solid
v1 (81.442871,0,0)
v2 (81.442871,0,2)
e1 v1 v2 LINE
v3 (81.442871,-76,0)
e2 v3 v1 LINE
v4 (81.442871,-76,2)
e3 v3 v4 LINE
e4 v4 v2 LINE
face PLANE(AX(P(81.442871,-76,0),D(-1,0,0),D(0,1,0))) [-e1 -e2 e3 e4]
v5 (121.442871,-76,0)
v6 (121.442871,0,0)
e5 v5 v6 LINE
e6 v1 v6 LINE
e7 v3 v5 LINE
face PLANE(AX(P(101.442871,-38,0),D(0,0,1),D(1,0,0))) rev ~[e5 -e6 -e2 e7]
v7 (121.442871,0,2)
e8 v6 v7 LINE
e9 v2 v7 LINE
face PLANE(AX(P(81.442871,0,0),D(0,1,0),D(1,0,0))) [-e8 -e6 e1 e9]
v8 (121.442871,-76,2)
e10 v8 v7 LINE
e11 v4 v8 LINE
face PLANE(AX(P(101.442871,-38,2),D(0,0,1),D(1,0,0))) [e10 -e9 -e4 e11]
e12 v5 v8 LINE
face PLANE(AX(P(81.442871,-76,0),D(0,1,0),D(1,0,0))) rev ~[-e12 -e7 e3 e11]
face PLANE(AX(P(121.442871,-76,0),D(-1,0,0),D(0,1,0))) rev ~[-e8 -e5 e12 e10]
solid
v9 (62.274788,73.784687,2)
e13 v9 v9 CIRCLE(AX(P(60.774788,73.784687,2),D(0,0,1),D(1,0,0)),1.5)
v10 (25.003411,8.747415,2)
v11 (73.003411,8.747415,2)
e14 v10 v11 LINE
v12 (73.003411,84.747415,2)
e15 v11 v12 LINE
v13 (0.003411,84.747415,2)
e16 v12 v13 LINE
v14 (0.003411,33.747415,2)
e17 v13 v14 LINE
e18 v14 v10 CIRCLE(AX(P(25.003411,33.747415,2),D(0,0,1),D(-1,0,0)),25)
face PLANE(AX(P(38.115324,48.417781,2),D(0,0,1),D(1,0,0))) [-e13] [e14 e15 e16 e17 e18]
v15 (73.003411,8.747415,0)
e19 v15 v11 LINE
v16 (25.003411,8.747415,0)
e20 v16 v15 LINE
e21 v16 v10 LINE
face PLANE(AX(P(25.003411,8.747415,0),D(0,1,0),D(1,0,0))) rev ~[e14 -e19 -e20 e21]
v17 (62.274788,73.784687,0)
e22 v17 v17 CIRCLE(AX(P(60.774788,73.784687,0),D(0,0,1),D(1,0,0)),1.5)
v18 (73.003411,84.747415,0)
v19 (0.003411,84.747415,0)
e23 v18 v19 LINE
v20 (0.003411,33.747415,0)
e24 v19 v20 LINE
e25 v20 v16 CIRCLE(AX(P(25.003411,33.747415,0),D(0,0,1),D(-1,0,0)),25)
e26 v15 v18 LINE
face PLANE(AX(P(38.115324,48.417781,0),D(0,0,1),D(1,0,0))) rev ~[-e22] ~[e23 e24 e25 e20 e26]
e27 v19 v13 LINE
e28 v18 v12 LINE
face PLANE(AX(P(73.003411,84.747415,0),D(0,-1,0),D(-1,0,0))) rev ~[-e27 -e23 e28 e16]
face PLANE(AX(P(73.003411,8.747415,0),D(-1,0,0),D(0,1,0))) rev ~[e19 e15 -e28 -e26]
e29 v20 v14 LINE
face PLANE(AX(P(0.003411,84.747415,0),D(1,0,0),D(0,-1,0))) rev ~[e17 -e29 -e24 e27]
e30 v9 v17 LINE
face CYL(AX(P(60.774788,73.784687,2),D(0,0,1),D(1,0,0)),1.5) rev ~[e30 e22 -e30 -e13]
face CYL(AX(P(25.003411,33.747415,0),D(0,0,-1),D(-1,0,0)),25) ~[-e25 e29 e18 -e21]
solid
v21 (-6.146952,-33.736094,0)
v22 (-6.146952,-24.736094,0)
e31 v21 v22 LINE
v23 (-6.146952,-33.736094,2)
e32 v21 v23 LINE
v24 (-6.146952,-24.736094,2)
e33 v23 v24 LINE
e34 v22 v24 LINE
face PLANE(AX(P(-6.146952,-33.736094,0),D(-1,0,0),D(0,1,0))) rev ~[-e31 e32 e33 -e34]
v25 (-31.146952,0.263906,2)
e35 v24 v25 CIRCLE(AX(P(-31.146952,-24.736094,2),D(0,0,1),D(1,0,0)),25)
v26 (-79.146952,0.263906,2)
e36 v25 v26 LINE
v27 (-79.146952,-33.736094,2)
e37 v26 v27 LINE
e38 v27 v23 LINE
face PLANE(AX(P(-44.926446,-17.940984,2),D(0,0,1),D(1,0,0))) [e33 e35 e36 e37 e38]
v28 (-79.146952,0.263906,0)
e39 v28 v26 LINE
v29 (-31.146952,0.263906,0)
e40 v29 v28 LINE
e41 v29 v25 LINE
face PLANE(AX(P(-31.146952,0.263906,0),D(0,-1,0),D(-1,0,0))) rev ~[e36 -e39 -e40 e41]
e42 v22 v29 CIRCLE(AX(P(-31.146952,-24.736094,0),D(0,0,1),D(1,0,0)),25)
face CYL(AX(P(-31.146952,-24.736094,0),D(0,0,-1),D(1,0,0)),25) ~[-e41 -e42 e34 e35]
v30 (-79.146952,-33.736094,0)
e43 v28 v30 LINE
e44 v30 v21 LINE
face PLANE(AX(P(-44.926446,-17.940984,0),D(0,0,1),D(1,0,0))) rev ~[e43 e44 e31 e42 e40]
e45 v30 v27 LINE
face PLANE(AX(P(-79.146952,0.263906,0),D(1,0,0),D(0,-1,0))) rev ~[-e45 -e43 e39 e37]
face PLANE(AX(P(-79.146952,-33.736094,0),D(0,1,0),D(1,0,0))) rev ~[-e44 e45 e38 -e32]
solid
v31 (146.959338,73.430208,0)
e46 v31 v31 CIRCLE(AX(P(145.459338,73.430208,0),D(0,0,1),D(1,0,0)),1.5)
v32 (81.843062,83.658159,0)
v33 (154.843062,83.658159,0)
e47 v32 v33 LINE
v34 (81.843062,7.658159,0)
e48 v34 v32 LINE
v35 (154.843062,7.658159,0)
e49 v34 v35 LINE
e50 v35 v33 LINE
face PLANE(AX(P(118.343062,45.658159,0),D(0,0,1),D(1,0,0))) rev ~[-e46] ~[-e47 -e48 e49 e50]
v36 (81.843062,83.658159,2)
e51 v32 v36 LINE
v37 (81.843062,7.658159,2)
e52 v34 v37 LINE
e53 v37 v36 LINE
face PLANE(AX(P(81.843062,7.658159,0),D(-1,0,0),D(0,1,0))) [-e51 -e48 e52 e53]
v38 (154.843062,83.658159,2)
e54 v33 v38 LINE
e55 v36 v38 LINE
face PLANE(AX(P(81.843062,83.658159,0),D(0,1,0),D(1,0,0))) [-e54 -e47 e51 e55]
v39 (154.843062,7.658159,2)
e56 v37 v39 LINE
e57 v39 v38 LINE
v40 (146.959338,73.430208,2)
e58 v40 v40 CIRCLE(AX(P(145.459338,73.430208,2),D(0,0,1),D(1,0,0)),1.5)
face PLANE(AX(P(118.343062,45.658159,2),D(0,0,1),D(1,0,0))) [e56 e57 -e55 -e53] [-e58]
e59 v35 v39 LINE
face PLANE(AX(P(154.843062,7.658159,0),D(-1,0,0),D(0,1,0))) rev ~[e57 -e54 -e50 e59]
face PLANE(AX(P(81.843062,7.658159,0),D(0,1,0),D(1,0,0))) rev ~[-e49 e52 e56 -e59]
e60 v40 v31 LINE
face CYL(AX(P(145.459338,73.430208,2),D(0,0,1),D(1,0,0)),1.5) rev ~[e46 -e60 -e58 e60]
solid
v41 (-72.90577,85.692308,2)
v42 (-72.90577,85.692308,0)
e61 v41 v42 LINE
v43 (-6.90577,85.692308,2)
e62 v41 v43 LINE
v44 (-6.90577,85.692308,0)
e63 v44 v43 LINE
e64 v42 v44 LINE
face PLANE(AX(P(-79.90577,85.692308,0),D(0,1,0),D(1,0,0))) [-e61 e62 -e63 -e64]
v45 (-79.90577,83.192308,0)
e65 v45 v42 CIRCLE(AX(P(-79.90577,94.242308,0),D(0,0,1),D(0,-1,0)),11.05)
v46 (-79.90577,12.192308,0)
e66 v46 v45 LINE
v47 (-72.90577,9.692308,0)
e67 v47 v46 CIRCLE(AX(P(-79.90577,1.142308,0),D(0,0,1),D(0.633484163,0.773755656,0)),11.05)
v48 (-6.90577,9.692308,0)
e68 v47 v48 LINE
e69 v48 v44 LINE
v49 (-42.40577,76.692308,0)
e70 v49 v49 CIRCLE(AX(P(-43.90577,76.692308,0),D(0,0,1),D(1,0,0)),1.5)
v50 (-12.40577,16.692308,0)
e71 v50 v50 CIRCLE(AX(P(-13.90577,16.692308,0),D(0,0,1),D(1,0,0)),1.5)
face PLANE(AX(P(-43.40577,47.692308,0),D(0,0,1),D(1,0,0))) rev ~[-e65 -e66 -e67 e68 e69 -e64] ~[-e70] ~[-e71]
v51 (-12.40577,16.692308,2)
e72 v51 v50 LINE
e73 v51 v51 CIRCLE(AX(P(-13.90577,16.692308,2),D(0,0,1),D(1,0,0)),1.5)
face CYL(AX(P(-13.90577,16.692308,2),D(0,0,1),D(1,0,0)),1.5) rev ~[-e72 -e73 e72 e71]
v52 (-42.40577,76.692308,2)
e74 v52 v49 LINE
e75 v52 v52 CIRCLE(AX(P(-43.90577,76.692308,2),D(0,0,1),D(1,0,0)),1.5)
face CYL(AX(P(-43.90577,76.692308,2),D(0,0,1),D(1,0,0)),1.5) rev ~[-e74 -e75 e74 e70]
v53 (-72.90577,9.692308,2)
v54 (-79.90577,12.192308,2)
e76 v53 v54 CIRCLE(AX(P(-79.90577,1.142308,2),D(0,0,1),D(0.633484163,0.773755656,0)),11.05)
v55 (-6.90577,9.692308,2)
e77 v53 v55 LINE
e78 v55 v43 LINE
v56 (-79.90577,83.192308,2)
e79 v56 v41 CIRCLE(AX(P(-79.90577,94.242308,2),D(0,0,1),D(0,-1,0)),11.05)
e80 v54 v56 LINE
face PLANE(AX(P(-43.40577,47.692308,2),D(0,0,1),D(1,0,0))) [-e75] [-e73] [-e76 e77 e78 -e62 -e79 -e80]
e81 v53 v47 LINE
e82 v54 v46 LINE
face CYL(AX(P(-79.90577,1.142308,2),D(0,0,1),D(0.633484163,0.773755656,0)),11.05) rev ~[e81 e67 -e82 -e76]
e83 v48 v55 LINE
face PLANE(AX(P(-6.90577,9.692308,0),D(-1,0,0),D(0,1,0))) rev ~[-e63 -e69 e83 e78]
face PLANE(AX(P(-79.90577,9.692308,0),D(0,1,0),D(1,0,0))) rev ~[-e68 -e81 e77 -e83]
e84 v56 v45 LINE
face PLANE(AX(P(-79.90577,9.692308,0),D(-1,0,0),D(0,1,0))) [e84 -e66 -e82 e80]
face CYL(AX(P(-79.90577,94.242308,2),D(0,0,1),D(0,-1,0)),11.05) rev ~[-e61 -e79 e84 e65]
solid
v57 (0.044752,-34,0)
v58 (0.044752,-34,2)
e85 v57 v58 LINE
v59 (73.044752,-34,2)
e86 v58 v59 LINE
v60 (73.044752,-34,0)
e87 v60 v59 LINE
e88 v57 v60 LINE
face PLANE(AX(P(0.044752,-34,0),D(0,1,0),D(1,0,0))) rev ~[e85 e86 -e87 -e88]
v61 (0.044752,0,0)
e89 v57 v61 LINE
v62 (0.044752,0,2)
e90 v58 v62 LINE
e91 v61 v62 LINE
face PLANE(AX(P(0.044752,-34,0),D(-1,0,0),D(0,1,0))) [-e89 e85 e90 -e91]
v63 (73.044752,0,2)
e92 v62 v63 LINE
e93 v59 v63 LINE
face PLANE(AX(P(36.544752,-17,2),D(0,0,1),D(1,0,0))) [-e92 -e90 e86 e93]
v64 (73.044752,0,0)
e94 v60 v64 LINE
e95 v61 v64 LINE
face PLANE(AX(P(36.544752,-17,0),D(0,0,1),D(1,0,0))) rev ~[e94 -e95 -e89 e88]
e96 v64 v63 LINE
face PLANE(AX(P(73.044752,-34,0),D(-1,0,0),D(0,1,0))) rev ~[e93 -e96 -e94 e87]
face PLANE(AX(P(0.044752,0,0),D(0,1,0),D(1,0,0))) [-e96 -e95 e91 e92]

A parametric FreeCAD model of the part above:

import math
import FreeCAD as App
import Part
import Sketcher
Q = App.Units.Quantity


def add_polygon(sketch, points):
    """Adds a closed chain of lines whose ends are joined by coincident constraints."""
    first, n = sketch.GeometryCount, len(points)
    for a, b in zip(points, points[1:] + points[:1]):
        sketch.addGeometry(Part.LineSegment(App.Vector(*a, 0), App.Vector(*b, 0)), False)
    for i in range(n):
        sketch.addConstraint(Sketcher.Constraint("Coincident", first + i, 2, first + (i + 1) % n, 1))

doc = App.newDocument("Part")
body = doc.addObject("PartDesign::Body", "Body")

sketch1 = doc.addObject("Sketcher::SketchObject", "Sketch")
body.addObject(sketch1)
sketch1.AttachmentSupport = (doc.XY_Plane, [""])
sketch1.MapMode = "FlatFace"
add_polygon(sketch1, [(-79.90577, 85.692308), (-79.90577, 9.692308), (-6.90577, 9.692308), (-6.90577, 85.692308)])
sketch1.addConstraint([
    Sketcher.Constraint("Vertical", 0),
    Sketcher.Constraint("Horizontal", 1),
    Sketcher.Constraint("Vertical", 2),
    Sketcher.Constraint("Horizontal", 3),
    Sketcher.Constraint("DistanceX", 1, 1, 1, 2, Q("73 mm")),
    Sketcher.Constraint("DistanceY", 0, 2, 0, 1, Q("76 mm")),
    Sketcher.Constraint("DistanceX", 0, 2, -1, 1, Q("79.90577 mm")),
    Sketcher.Constraint("DistanceY", -1, 1, 0, 2, Q("9.692308 mm")),
])
pad1 = doc.addObject("PartDesign::Pad", "Pad")
body.addObject(pad1)
pad1.Profile = sketch1
pad1.Length = 2
body2 = doc.addObject("PartDesign::Body", "Body001")

sketch2 = doc.addObject("Sketcher::SketchObject", "Sketch001")
body2.addObject(sketch2)
sketch2.AttachmentSupport = (doc.getObject("XY_Plane001"), [""])
sketch2.MapMode = "FlatFace"
sketch2.addGeometry([
    Part.LineSegment(App.Vector(73.003411, 84.747415, 0), App.Vector(0.003411, 84.747415, 0)),
    Part.LineSegment(App.Vector(0.003411, 84.747415, 0), App.Vector(0.003411, 33.747415, 0)),
    Part.ArcOfCircle(Part.Circle(App.Vector(25.003411, 33.747415, 0), App.Vector(0, 0, 1), 25), math.radians(180), math.radians(270)),
    Part.LineSegment(App.Vector(25.003411, 8.747415, 0), App.Vector(73.003411, 8.747415, 0)),
    Part.LineSegment(App.Vector(73.003411, 8.747415, 0), App.Vector(73.003411, 84.747415, 0)),
], False)
sketch2.addConstraint([
    Sketcher.Constraint("Coincident", 0, 2, 1, 1),
    Sketcher.Constraint("Tangent", 1, 2, 2, 1),
    Sketcher.Constraint("Tangent", 2, 2, 3, 1),
    Sketcher.Constraint("Coincident", 3, 2, 4, 1),
    Sketcher.Constraint("Coincident", 4, 2, 0, 1),
    Sketcher.Constraint("Horizontal", 0),
    Sketcher.Constraint("Vertical", 1),
    Sketcher.Constraint("Horizontal", 3),
    Sketcher.Constraint("Vertical", 4),
    Sketcher.Constraint("Radius", 2, Q("25 mm")),
    Sketcher.Constraint("DistanceX", 0, 2, 0, 1, Q("73 mm")),
    Sketcher.Constraint("DistanceY", 1, 2, 1, 1, Q("51 mm")),
    Sketcher.Constraint("DistanceX", -1, 1, 2, 3, Q("25.003411 mm")),
    Sketcher.Constraint("DistanceY", -1, 1, 2, 3, Q("33.747415 mm")),
])
pad2 = doc.addObject("PartDesign::Pad", "Pad001")
body2.addObject(pad2)
pad2.Profile = sketch2
pad2.Length = 2
body3 = doc.addObject("PartDesign::Body", "Body002")

sketch3 = doc.addObject("Sketcher::SketchObject", "Sketch002")
body3.addObject(sketch3)
sketch3.AttachmentSupport = (doc.getObject("XY_Plane002"), [""])
sketch3.MapMode = "FlatFace"
sketch3.addGeometry([
    Part.LineSegment(App.Vector(-31.146952, 0.263906, 0), App.Vector(-79.146952, 0.263906, 0)),
    Part.LineSegment(App.Vector(-79.146952, 0.263906, 0), App.Vector(-79.146952, -33.736094, 0)),
    Part.LineSegment(App.Vector(-79.146952, -33.736094, 0), App.Vector(-6.146952, -33.736094, 0)),
    Part.LineSegment(App.Vector(-6.146952, -33.736094, 0), App.Vector(-6.146952, -24.736094, 0)),
    Part.ArcOfCircle(Part.Circle(App.Vector(-31.146952, -24.736094, 0), App.Vector(0, 0, 1), 25), math.radians(0), math.radians(90)),
], False)
sketch3.addConstraint([
    Sketcher.Constraint("Coincident", 0, 2, 1, 1),
    Sketcher.Constraint("Coincident", 1, 2, 2, 1),
    Sketcher.Constraint("Coincident", 2, 2, 3, 1),
    Sketcher.Constraint("Tangent", 3, 2, 4, 1),
    Sketcher.Constraint("Tangent", 4, 2, 0, 1),
    Sketcher.Constraint("Horizontal", 0),
    Sketcher.Constraint("Vertical", 1),
    Sketcher.Constraint("Horizontal", 2),
    Sketcher.Constraint("Vertical", 3),
    Sketcher.Constraint("Radius", 4, Q("25 mm")),
    Sketcher.Constraint("DistanceX", 0, 2, 0, 1, Q("48 mm")),
    Sketcher.Constraint("DistanceY", 1, 2, 1, 1, Q("34 mm")),
    Sketcher.Constraint("DistanceX", 4, 3, -1, 1, Q("31.146952 mm")),
    Sketcher.Constraint("DistanceY", 4, 3, -1, 1, Q("24.736094 mm")),
])
pad3 = doc.addObject("PartDesign::Pad", "Pad002")
body3.addObject(pad3)
pad3.Profile = sketch3
pad3.Length = 2
body4 = doc.addObject("PartDesign::Body", "Body003")

sketch4 = doc.addObject("Sketcher::SketchObject", "Sketch003")
body4.addObject(sketch4)
sketch4.AttachmentSupport = (doc.getObject("XY_Plane003"), [""])
sketch4.MapMode = "FlatFace"
add_polygon(sketch4, [(0.044752, 0), (0.044752, -34), (73.044752, -34), (73.044752, 0)])
sketch4.addConstraint([
    Sketcher.Constraint("Vertical", 0),
    Sketcher.Constraint("Horizontal", 1),
    Sketcher.Constraint("Vertical", 2),
    Sketcher.Constraint("Horizontal", 3),
    Sketcher.Constraint("PointOnObject", 2, 2, -1),
    Sketcher.Constraint("DistanceX", 1, 1, 1, 2, Q("73 mm")),
    Sketcher.Constraint("DistanceY", 0, 2, 0, 1, Q("34 mm")),
    Sketcher.Constraint("DistanceX", -1, 1, 0, 2, Q("0.044752 mm")),
])
pad4 = doc.addObject("PartDesign::Pad", "Pad003")
body4.addObject(pad4)
pad4.Profile = sketch4
pad4.Length = 2
body5 = doc.addObject("PartDesign::Body", "Body004")

sketch5 = doc.addObject("Sketcher::SketchObject", "Sketch004")
body5.addObject(sketch5)
sketch5.AttachmentSupport = (doc.getObject("XY_Plane004"), [""])
sketch5.MapMode = "FlatFace"
add_polygon(sketch5, [(81.843062, 83.658159), (81.843062, 7.658159), (154.843062, 7.658159), (154.843062, 83.658159)])
sketch5.addConstraint([
    Sketcher.Constraint("Vertical", 0),
    Sketcher.Constraint("Horizontal", 1),
    Sketcher.Constraint("Vertical", 2),
    Sketcher.Constraint("Horizontal", 3),
    Sketcher.Constraint("DistanceX", 1, 1, 1, 2, Q("73 mm")),
    Sketcher.Constraint("DistanceY", 0, 2, 0, 1, Q("76 mm")),
    Sketcher.Constraint("DistanceY", -1, 1, 0, 2, Q("7.658159 mm")),
    Sketcher.Constraint("DistanceX", -1, 1, 0, 2, Q("81.843062 mm")),
])
pad5 = doc.addObject("PartDesign::Pad", "Pad004")
body5.addObject(pad5)
pad5.Profile = sketch5
pad5.Length = 2
body6 = doc.addObject("PartDesign::Body", "Body005")

sketch6 = doc.addObject("Sketcher::SketchObject", "Sketch005")
body6.addObject(sketch6)
sketch6.AttachmentSupport = (doc.getObject("XY_Plane005"), [""])
sketch6.MapMode = "FlatFace"
add_polygon(sketch6, [(81.442871, 0), (81.442871, -76), (121.442871, -76), (121.442871, 0)])
sketch6.addConstraint([
    Sketcher.Constraint("Vertical", 0),
    Sketcher.Constraint("Horizontal", 1),
    Sketcher.Constraint("Vertical", 2),
    Sketcher.Constraint("Horizontal", 3),
    Sketcher.Constraint("PointOnObject", 2, 2, -1),
    Sketcher.Constraint("DistanceX", 1, 1, 1, 2, Q("40 mm")),
    Sketcher.Constraint("DistanceY", 0, 2, 0, 1, Q("76 mm")),
    Sketcher.Constraint("DistanceX", -1, 1, 0, 2, Q("81.442871 mm")),
])
pad6 = doc.addObject("PartDesign::Pad", "Pad005")
body6.addObject(pad6)
pad6.Profile = sketch6
pad6.Length = 2
body7 = doc.addObject("PartDesign::Body", "Body006")

sketch7 = doc.addObject("Sketcher::SketchObject", "Sketch006")
body7.addObject(sketch7)
sketch7.AttachmentSupport = (doc.getObject("XY_Plane006"), [""])
sketch7.MapMode = "FlatFace"
add_polygon(sketch7, [(128.247227, -0.000594), (128.247227, -76.000594), (168.247227, -76.000594), (168.247227, -0.000594)])
sketch7.addConstraint([
    Sketcher.Constraint("Vertical", 0),
    Sketcher.Constraint("Horizontal", 1),
    Sketcher.Constraint("Vertical", 2),
    Sketcher.Constraint("Horizontal", 3),
    Sketcher.Constraint("DistanceX", 1, 1, 1, 2, Q("40 mm")),
    Sketcher.Constraint("DistanceY", 0, 2, 0, 1, Q("76 mm")),
    Sketcher.Constraint("DistanceX", -1, 1, 0, 2, Q("128.247227 mm")),
    Sketcher.Constraint("DistanceY", 0, 2, -1, 1, Q("76.000594 mm")),
])
pad7 = doc.addObject("PartDesign::Pad", "Pad006")
body7.addObject(pad7)
pad7.Profile = sketch7
pad7.Length = 2
body8 = doc.addObject("PartDesign::Body", "Body007")
body8.AllowCompound = True

sketch8 = doc.addObject("Sketcher::SketchObject", "Sketch007")
body8.addObject(sketch8)
sketch8.AttachmentSupport = (doc.getObject("XY_Plane007"), [""])
sketch8.MapMode = "FlatFace"
sketch8.AttachmentOffset = App.Placement(App.Vector(0, 0, 2), App.Rotation())
sketch8.addGeometry([
    Part.Circle(App.Vector(60.774788, 73.784687, 0), App.Vector(0, 0, 1), 1.5),
    Part.Circle(App.Vector(145.459338, 73.430208, 0), App.Vector(0, 0, 1), 1.5),
    Part.Circle(App.Vector(-13.90577, 16.692308, 0), App.Vector(0, 0, 1), 1.5),
    Part.Circle(App.Vector(-43.90577, 76.692308, 0), App.Vector(0, 0, 1), 1.5),
], False)
sketch8.addConstraint([
    Sketcher.Constraint("Equal", 0, 1),
    Sketcher.Constraint("Equal", 1, 2),
    Sketcher.Constraint("Equal", 2, 3),
    Sketcher.Constraint("Diameter", 0, Q("3 mm")),
    Sketcher.Constraint("DistanceX", 3, 3, 2, 3, Q("30 mm")),
    Sketcher.Constraint("DistanceY", 2, 3, 3, 3, Q("60 mm")),
    Sketcher.Constraint("DistanceY", 2, 3, 1, 3, Q("56.737899 mm")),
    Sketcher.Constraint("DistanceX", -1, 1, 0, 3, Q("60.774788 mm")),
    Sketcher.Constraint("DistanceX", -1, 1, 1, 3, Q("145.459338 mm")),
    Sketcher.Constraint("DistanceX", 2, 3, -1, 1, Q("13.90577 mm")),
    Sketcher.Constraint("DistanceY", -1, 1, 2, 3, Q("16.692308 mm")),
    Sketcher.Constraint("DistanceY", 1, 3, 0, 3, Q("0.354479 mm")),
])
pad8 = doc.addObject("PartDesign::Pad", "Pad007")
body8.addObject(pad8)
pad8.Profile = sketch8
pad8.Length = 3
pad8.Reversed = True
doc.recompute()

body9 = doc.addObject("PartDesign::Body", "Body008")
body9.BaseFeature = body8
boolean = doc.addObject("PartDesign::Boolean", "Boolean")
body.addObject(boolean)
boolean.Type = "Cut"
boolean.addObjects([body9])
doc.recompute()

sketch9 = doc.addObject("Sketcher::SketchObject", "Sketch008")
body.addObject(sketch9)
sketch9.AttachmentSupport = (doc.XY_Plane, [""])
sketch9.MapMode = "FlatFace"
sketch9.AttachmentOffset = App.Placement(App.Vector(0, 0, 2), App.Rotation())
sketch9.addGeometry([
    Part.LineSegment(App.Vector(-72.90577, 85.692308, 0), App.Vector(-79.90577, 85.692308, 0)),
    Part.LineSegment(App.Vector(-79.90577, 85.692308, 0), App.Vector(-79.90577, 83.192308, 0)),
    Part.ArcOfCircle(Part.Circle(App.Vector(-79.90577, 94.242308, 0), App.Vector(0, 0, 1), 11.05), math.radians(-90), math.radians(-50.692352)),
    Part.ArcOfCircle(Part.Circle(App.Vector(-79.90577, 1.142308, 0), App.Vector(0, 0, 1), 11.05), math.radians(50.692352), math.radians(90)),
    Part.LineSegment(App.Vector(-79.90577, 12.192308, 0), App.Vector(-79.90577, 9.692308, 0)),
    Part.LineSegment(App.Vector(-79.90577, 9.692308, 0), App.Vector(-72.90577, 9.692308, 0)),
], False)
sketch9.addConstraint([
    Sketcher.Constraint("Coincident", 0, 2, 1, 1),
    Sketcher.Constraint("Coincident", 1, 2, 2, 1),
    Sketcher.Constraint("Coincident", 2, 2, 0, 1),
    Sketcher.Constraint("Coincident", 3, 2, 4, 1),
    Sketcher.Constraint("Coincident", 4, 2, 5, 1),
    Sketcher.Constraint("Coincident", 5, 2, 3, 1),
    Sketcher.Constraint("Horizontal", 0),
    Sketcher.Constraint("Vertical", 1),
    Sketcher.Constraint("Vertical", 4),
    Sketcher.Constraint("Horizontal", 5),
    Sketcher.Constraint("Equal", 2, 3),
    Sketcher.Constraint("Vertical", 2, 3, 3, 3),
    Sketcher.Constraint("Vertical", 3, 3, 0, 2),
    Sketcher.Constraint("Vertical", 1, 2, 3, 2),
    Sketcher.Constraint("Vertical", 2, 2, 5, 2),
    Sketcher.Constraint("DistanceX", 0, 2, 0, 1, Q("7 mm")),
    Sketcher.Constraint("Radius", 2, Q("11.05 mm")),
    Sketcher.Constraint("DistanceY", 3, 2, 1, 2, Q("71 mm")),
    Sketcher.Constraint("DistanceX", 2, 3, -1, 1, Q("79.90577 mm")),
    Sketcher.Constraint("DistanceY", -1, 1, 2, 3, Q("94.242308 mm")),
])
pocket1 = doc.addObject("PartDesign::Pocket", "Pocket")
body.addObject(pocket1)
pocket1.Profile = sketch9
pocket1.Length = 25
doc.recompute()

body10 = doc.addObject("PartDesign::Body", "Body009")
body10.BaseFeature = body8
boolean2 = doc.addObject("PartDesign::Boolean", "Boolean001")
body2.addObject(boolean2)
boolean2.Type = "Cut"
boolean2.addObjects([body10])
doc.recompute()

boolean3 = doc.addObject("PartDesign::Boolean", "Boolean002")
body5.addObject(boolean3)
boolean3.Type = "Cut"
boolean3.addObjects([body8])
body7.Visibility = False

doc.recompute()
